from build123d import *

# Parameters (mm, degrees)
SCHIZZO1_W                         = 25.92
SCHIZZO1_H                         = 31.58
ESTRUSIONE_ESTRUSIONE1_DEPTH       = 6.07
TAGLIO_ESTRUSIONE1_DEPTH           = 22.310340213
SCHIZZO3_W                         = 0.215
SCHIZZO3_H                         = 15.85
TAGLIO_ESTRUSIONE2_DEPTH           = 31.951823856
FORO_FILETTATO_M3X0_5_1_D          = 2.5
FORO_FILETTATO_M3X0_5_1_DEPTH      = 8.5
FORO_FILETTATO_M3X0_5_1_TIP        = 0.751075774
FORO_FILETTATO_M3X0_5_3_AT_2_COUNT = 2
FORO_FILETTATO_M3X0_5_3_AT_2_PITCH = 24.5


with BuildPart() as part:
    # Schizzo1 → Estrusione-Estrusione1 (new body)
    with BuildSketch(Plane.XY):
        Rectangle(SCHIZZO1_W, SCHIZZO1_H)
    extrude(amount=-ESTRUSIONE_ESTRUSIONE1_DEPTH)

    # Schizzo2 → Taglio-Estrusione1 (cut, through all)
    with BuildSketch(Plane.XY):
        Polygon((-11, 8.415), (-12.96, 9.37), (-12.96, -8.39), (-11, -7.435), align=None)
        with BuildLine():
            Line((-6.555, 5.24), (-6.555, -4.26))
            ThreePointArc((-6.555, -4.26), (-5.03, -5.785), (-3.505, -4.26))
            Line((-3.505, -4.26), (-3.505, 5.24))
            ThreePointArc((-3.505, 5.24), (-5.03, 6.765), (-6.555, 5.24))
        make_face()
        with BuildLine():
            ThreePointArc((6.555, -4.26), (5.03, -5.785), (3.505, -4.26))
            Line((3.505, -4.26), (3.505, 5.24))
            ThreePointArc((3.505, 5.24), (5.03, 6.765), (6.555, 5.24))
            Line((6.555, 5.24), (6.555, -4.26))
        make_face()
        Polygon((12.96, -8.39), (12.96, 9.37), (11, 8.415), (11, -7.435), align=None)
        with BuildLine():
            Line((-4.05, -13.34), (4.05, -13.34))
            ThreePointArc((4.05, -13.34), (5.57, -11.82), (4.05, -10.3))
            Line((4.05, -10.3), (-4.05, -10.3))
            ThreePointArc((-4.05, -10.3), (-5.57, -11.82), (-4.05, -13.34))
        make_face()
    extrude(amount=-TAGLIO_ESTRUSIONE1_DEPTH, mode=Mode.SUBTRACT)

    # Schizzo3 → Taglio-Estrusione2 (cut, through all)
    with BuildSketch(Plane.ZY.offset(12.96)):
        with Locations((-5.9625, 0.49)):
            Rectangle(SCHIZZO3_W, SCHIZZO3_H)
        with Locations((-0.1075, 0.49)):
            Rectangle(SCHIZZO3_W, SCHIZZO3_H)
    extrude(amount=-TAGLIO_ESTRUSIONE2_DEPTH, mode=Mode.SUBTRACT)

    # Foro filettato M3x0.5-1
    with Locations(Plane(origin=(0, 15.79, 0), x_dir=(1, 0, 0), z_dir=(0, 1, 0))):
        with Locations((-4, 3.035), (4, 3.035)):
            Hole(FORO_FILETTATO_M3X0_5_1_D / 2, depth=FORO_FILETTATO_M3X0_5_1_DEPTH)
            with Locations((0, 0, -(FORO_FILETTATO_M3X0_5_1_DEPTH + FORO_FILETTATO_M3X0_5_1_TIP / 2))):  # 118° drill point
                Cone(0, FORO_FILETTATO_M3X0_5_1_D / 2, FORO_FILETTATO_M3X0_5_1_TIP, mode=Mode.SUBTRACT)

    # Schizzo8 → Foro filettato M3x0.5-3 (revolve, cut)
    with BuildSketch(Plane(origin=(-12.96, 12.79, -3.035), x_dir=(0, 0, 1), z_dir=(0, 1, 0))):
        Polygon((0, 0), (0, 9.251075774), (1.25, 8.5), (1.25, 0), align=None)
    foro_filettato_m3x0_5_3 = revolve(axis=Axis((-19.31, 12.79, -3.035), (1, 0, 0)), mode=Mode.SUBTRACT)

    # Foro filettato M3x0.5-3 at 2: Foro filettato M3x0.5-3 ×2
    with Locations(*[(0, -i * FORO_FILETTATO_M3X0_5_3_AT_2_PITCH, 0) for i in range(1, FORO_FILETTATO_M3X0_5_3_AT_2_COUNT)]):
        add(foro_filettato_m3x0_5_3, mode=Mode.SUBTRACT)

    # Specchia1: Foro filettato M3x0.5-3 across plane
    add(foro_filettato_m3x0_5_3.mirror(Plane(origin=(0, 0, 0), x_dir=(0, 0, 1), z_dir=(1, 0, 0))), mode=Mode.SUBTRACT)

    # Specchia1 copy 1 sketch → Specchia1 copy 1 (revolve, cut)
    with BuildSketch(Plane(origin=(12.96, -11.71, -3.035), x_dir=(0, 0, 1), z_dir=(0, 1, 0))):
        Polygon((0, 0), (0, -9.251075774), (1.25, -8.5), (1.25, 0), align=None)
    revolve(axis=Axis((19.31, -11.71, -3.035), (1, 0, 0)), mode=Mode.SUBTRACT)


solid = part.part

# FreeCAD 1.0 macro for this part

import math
import FreeCAD as App
import Part
import Sketcher
Q = App.Units.Quantity

doc = App.newDocument("Part")
body = doc.addObject("PartDesign::Body", "Body")

# Sketch on XY plane
sketch1 = body.newObject("Sketcher::SketchObject", "Sketch")
sketch1.AttachmentSupport = (doc.getObject("XY_Plane"), [""])
sketch1.MapMode = "FlatFace"
sketch1.addGeometry(Part.LineSegment(App.Vector(-12.96, 15.79, 0), App.Vector(-12.96, -15.79, 0)), False)
sketch1.addGeometry(Part.LineSegment(App.Vector(-12.96, -15.79, 0), App.Vector(12.96, -15.79, 0)), False)
sketch1.addGeometry(Part.LineSegment(App.Vector(12.96, -15.79, 0), App.Vector(12.96, 15.79, 0)), False)
sketch1.addGeometry(Part.LineSegment(App.Vector(12.96, 15.79, 0), App.Vector(-12.96, 15.79, 0)), False)
sketch1.addConstraint(Sketcher.Constraint("Coincident", 0, 2, 1, 1))
sketch1.addConstraint(Sketcher.Constraint("Coincident", 1, 2, 2, 1))
sketch1.addConstraint(Sketcher.Constraint("Coincident", 2, 2, 3, 1))
sketch1.addConstraint(Sketcher.Constraint("Coincident", 3, 2, 0, 1))
sketch1.addConstraint(Sketcher.Constraint("Vertical", 0))
sketch1.addConstraint(Sketcher.Constraint("Horizontal", 1))
sketch1.addConstraint(Sketcher.Constraint("Vertical", 2))
sketch1.addConstraint(Sketcher.Constraint("Horizontal", 3))
sketch1.addConstraint(Sketcher.Constraint("Symmetric", 0, 2, 2, 2, -1, 1))
sketch1.addConstraint(Sketcher.Constraint("DistanceX", 1, 1, 1, 2, 25.92))
sketch1.addConstraint(Sketcher.Constraint("DistanceY", 0, 2, 0, 1, 31.58))
pad1 = body.newObject("PartDesign::Pad", "Pad")
pad1.Profile = sketch1
pad1.Length = 6.07
pad1.Reversed = True

# Sketch on XY plane
sketch2 = body.newObject("Sketcher::SketchObject", "Sketch001")
sketch2.AttachmentSupport = (doc.getObject("XY_Plane"), [""])
sketch2.MapMode = "FlatFace"
sketch2.addGeometry(Part.LineSegment(App.Vector(-11, 8.415, 0), App.Vector(-12.96, 9.37, 0)), False)
sketch2.addGeometry(Part.LineSegment(App.Vector(-12.96, 9.37, 0), App.Vector(-12.96, -8.39, 0)), False)
sketch2.addGeometry(Part.LineSegment(App.Vector(-12.96, -8.39, 0), App.Vector(-11, -7.435, 0)), False)
sketch2.addGeometry(Part.LineSegment(App.Vector(-11, -7.435, 0), App.Vector(-11, 8.415, 0)), False)
sketch2.addGeometry(Part.LineSegment(App.Vector(-6.555, 5.24, 0), App.Vector(-6.555, -4.26, 0)), False)
sketch2.addGeometry(Part.ArcOfCircle(Part.Circle(App.Vector(-5.03, -4.26, 0), App.Vector(0, 0, 1), 1.525), math.radians(180), math.radians(360)), False)
sketch2.addGeometry(Part.LineSegment(App.Vector(-3.505, -4.26, 0), App.Vector(-3.505, 5.24, 0)), False)
sketch2.addGeometry(Part.ArcOfCircle(Part.Circle(App.Vector(-5.03, 5.24, 0), App.Vector(0, 0, 1), 1.525), math.radians(0), math.radians(180)), False)
sketch2.addGeometry(Part.ArcOfCircle(Part.Circle(App.Vector(5.03, -4.26, 0), App.Vector(0, 0, 1), 1.525), math.radians(180), math.radians(360)), False)
sketch2.addGeometry(Part.LineSegment(App.Vector(6.555, -4.26, 0), App.Vector(6.555, 5.24, 0)), False)
sketch2.addGeometry(Part.ArcOfCircle(Part.Circle(App.Vector(5.03, 5.24, 0), App.Vector(0, 0, 1), 1.525), math.radians(0), math.radians(180)), False)
sketch2.addGeometry(Part.LineSegment(App.Vector(3.505, 5.24, 0), App.Vector(3.505, -4.26, 0)), False)
sketch2.addGeometry(Part.LineSegment(App.Vector(12.96, -8.39, 0), App.Vector(12.96, 9.37, 0)), False)
sketch2.addGeometry(Part.LineSegment(App.Vector(12.96, 9.37, 0), App.Vector(11, 8.415, 0)), False)
sketch2.addGeometry(Part.LineSegment(App.Vector(11, 8.415, 0), App.Vector(11, -7.435, 0)), False)
sketch2.addGeometry(Part.LineSegment(App.Vector(11, -7.435, 0), App.Vector(12.96, -8.39, 0)), False)
sketch2.addGeometry(Part.LineSegment(App.Vector(-4.05, -13.34, 0), App.Vector(4.05, -13.34, 0)), False)
sketch2.addGeometry(Part.ArcOfCircle(Part.Circle(App.Vector(4.05, -11.82, 0), App.Vector(0, 0, 1), 1.52), math.radians(-90), math.radians(90)), False)
sketch2.addGeometry(Part.LineSegment(App.Vector(4.05, -10.3, 0), App.Vector(-4.05, -10.3, 0)), False)
sketch2.addGeometry(Part.ArcOfCircle(Part.Circle(App.Vector(-4.05, -11.82, 0), App.Vector(0, 0, 1), 1.52), math.radians(90), math.radians(270)), False)
sketch2.addConstraint(Sketcher.Constraint("Coincident", 0, 2, 1, 1))
sketch2.addConstraint(Sketcher.Constraint("Coincident", 1, 2, 2, 1))
sketch2.addConstraint(Sketcher.Constraint("Coincident", 2, 2, 3, 1))
sketch2.addConstraint(Sketcher.Constraint("Coincident", 3, 2, 0, 1))
sketch2.addConstraint(Sketcher.Constraint("Tangent", 4, 2, 5, 1))
sketch2.addConstraint(Sketcher.Constraint("Tangent", 5, 2, 6, 1))
sketch2.addConstraint(Sketcher.Constraint("Tangent", 6, 2, 7, 1))
sketch2.addConstraint(Sketcher.Constraint("Tangent", 7, 2, 4, 1))
sketch2.addConstraint(Sketcher.Constraint("Tangent", 8, 2, 9, 1))
sketch2.addConstraint(Sketcher.Constraint("Tangent", 9, 2, 10, 1))
sketch2.addConstraint(Sketcher.Constraint("Tangent", 10, 2, 11, 1))
sketch2.addConstraint(Sketcher.Constraint("Tangent", 11, 2, 8, 1))
sketch2.addConstraint(Sketcher.Constraint("Coincident", 12, 2, 13, 1))
sketch2.addConstraint(Sketcher.Constraint("Coincident", 13, 2, 14, 1))
sketch2.addConstraint(Sketcher.Constraint("Coincident", 14, 2, 15, 1))
sketch2.addConstraint(Sketcher.Constraint("Coincident", 15, 2, 12, 1))
sketch2.addConstraint(Sketcher.Constraint("Tangent", 16, 2, 17, 1))
sketch2.addConstraint(Sketcher.Constraint("Tangent", 17, 2, 18, 1))
sketch2.addConstraint(Sketcher.Constraint("Tangent", 18, 2, 19, 1))
sketch2.addConstraint(Sketcher.Constraint("Tangent", 19, 2, 16, 1))
sketch2.addConstraint(Sketcher.Constraint("Vertical", 1))
sketch2.addConstraint(Sketcher.Constraint("Vertical", 3))
sketch2.addConstraint(Sketcher.Constraint("Vertical", 4))
sketch2.addConstraint(Sketcher.Constraint("Vertical", 6))
sketch2.addConstraint(Sketcher.Constraint("Vertical", 9))
sketch2.addConstraint(Sketcher.Constraint("Vertical", 11))
sketch2.addConstraint(Sketcher.Constraint("Vertical", 12))
sketch2.addConstraint(Sketcher.Constraint("Vertical", 14))
sketch2.addConstraint(Sketcher.Constraint("Horizontal", 16))
sketch2.addConstraint(Sketcher.Constraint("Horizontal", 18))
sketch2.addConstraint(Sketcher.Constraint("Equal", 7, 8))
sketch2.addConstraint(Sketcher.Constraint("Symmetric", 5, 3, 8, 3, -2))
sketch2.addConstraint(Sketcher.Constraint("Symmetric", 0, 2, 12, 2, -2))
sketch2.addConstraint(Sketcher.Constraint("Symmetric", 3, 2, 13, 2, -2))
sketch2.addConstraint(Sketcher.Constraint("Parallel", 2, 13))
sketch2.addConstraint(Sketcher.Constraint("Parallel", 0, 15))
sketch2.addConstraint(Sketcher.Constraint("Horizontal", 7, 3, 10, 3))
sketch2.addConstraint(Sketcher.Constraint("Horizontal", 2, 2, 14, 2))
sketch2.addConstraint(Sketcher.Constraint("Radius", 17, 1.52))
sketch2.addConstraint(Sketcher.Constraint("DistanceX", 16, 1, 16, 2, 8.1))
sketch2.addConstraint(Sketcher.Constraint("DistanceY", 4, 2, 4, 1, 9.5))
sketch2.addConstraint(Sketcher.Constraint("DistanceX", 2, 2, -1, 1, 11.0))
sketch2.addConstraint(Sketcher.Constraint("Radius", 5, 1.525))
sketch2.addConstraint(Sketcher.Constraint("DistanceY", 1, 2, 1, 1, 17.76))
sketch2.addConstraint(Sketcher.Constraint("DistanceY", 3, 1, 3, 2, 15.85))
sketch2.addConstraint(Sketcher.Constraint("DistanceY", 17, 2, -1, 1, 10.3))
sketch2.addConstraint(Sketcher.Constraint("DistanceX", 5, 3, -1, 1, 5.03))
sketch2.addConstraint(Sketcher.Constraint("DistanceY", 5, 3, -1, 1, 4.26))
sketch2.addConstraint(Sketcher.Constraint("DistanceX", -1, 1, 17, 3, 4.05))
sketch2.addConstraint(Sketcher.Constraint("DistanceX", 0, 2, -1, 1, 12.96))
sketch2.addConstraint(Sketcher.Constraint("DistanceY", -1, 1, 0, 2, 9.37))
pocket1 = body.newObject("PartDesign::Pocket", "Pocket")
pocket1.Profile = sketch2
pocket1.Type = "ThroughAll"

# Sketch on YZ plane
sketch3 = body.newObject("Sketcher::SketchObject", "Sketch002")
sketch3.AttachmentSupport = (doc.getObject("YZ_Plane"), [""])
sketch3.MapMode = "FlatFace"
sketch3.AttachmentOffset = App.Placement(App.Vector(0, 0, -12.96), App.Rotation())
sketch3.addGeometry(Part.LineSegment(App.Vector(8.415, -6.07, 0), App.Vector(-7.435, -6.07, 0)), False)
sketch3.addGeometry(Part.LineSegment(App.Vector(-7.435, -6.07, 0), App.Vector(-7.435, -5.855, 0)), False)
sketch3.addGeometry(Part.LineSegment(App.Vector(-7.435, -5.855, 0), App.Vector(8.415, -5.855, 0)), False)
sketch3.addGeometry(Part.LineSegment(App.Vector(8.415, -5.855, 0), App.Vector(8.415, -6.07, 0)), False)
sketch3.addGeometry(Part.LineSegment(App.Vector(8.415, -0.215, 0), App.Vector(-7.435, -0.215, 0)), False)
sketch3.addGeometry(Part.LineSegment(App.Vector(-7.435, -0.215, 0), App.Vector(-7.435, 0, 0)), False)
sketch3.addGeometry(Part.LineSegment(App.Vector(-7.435, 0, 0), App.Vector(8.415, 0, 0)), False)
sketch3.addGeometry(Part.LineSegment(App.Vector(8.415, 0, 0), App.Vector(8.415, -0.215, 0)), False)
sketch3.addConstraint(Sketcher.Constraint("Coincident", 0, 2, 1, 1))
sketch3.addConstraint(Sketcher.Constraint("Coincident", 1, 2, 2, 1))
sketch3.addConstraint(Sketcher.Constraint("Coincident", 2, 2, 3, 1))
sketch3.addConstraint(Sketcher.Constraint("Coincident", 3, 2, 0, 1))
sketch3.addConstraint(Sketcher.Constraint("Coincident", 4, 2, 5, 1))
sketch3.addConstraint(Sketcher.Constraint("Coincident", 5, 2, 6, 1))
sketch3.addConstraint(Sketcher.Constraint("Coincident", 6, 2, 7, 1))
sketch3.addConstraint(Sketcher.Constraint("Coincident", 7, 2, 4, 1))
sketch3.addConstraint(Sketcher.Constraint("Horizontal", 0))
sketch3.addConstraint(Sketcher.Constraint("Vertical", 1))
sketch3.addConstraint(Sketcher.Constraint("Horizontal", 2))
sketch3.addConstraint(Sketcher.Constraint("Vertical", 3))
sketch3.addConstraint(Sketcher.Constraint("Horizontal", 4))
sketch3.addConstraint(Sketcher.Constraint("Vertical", 5))
sketch3.addConstraint(Sketcher.Constraint("Horizontal", 6))
sketch3.addConstraint(Sketcher.Constraint("Vertical", 7))
sketch3.addConstraint(Sketcher.Constraint("PointOnObject", 5, 2, -1))
sketch3.addConstraint(Sketcher.Constraint("Vertical", 1, 2, 4, 2))
sketch3.addConstraint(Sketcher.Constraint("Vertical", 3, 2, 6, 2))
sketch3.addConstraint(Sketcher.Constraint("Equal", 3, 5))
sketch3.addConstraint(Sketcher.Constraint("DistanceX", 0, 2, 0, 1, 15.85))
sketch3.addConstraint(Sketcher.Constraint("DistanceY", 1, 1, 1, 2, 0.215))
sketch3.addConstraint(Sketcher.Constraint("DistanceY", 0, 2, -1, 1, 6.07))
sketch3.addConstraint(Sketcher.Constraint("DistanceX", 0, 2, -1, 1, 7.435))
pocket2 = body.newObject("PartDesign::Pocket", "Pocket001")
pocket2.Profile = sketch3
pocket2.Type = "ThroughAll"
pocket2.Reversed = True

# Sketch on XZ plane
sketch4 = body.newObject("Sketcher::SketchObject", "Sketch003")
sketch4.AttachmentSupport = (doc.getObject("XZ_Plane"), [""])
sketch4.MapMode = "FlatFace"
sketch4.AttachmentOffset = App.Placement(App.Vector(0, 0, -15.79), App.Rotation())
sketch4.addGeometry(Part.Circle(App.Vector(-4, -3.035, 0), App.Vector(0, 0, 1), 1.25), False)
sketch4.addGeometry(Part.Circle(App.Vector(4, -3.035, 0), App.Vector(0, 0, 1), 1.25), False)
sketch4.addConstraint(Sketcher.Constraint("Equal", 0, 1))
sketch4.addConstraint(Sketcher.Constraint("Symmetric", 0, 3, 1, 3, -2))
sketch4.addConstraint(Sketcher.Constraint("Diameter", 0, 2.5))
sketch4.addConstraint(Sketcher.Constraint("DistanceX", 0, 3, -1, 1, 4.0))
sketch4.addConstraint(Sketcher.Constraint("DistanceY", 0, 3, -1, 1, 3.035))
doc.recompute()
hole = body.newObject("PartDesign::Hole", "Hole")
hole.Profile = sketch4
hole.ThreadType = "None"
hole.Diameter = 2.5
hole.DepthType = "Dimension"
hole.Depth = 8.5
hole.DrillPoint = "Angled"
hole.DrillPointAngle = 118
hole.Reversed = True

# Sketch on XZ plane
sketch5 = body.newObject("Sketcher::SketchObject", "Sketch004")
sketch5.AttachmentSupport = (doc.getObject("XZ_Plane"), [""])
sketch5.MapMode = "FlatFace"
sketch5.AttachmentOffset = App.Placement(App.Vector(0, 0, -12.79), App.Rotation())
sketch5.addGeometry(Part.LineSegment(App.Vector(-3.708924, -3.035, 0), App.Vector(-12.96, -3.035, 0)), False)
sketch5.addGeometry(Part.LineSegment(App.Vector(-12.96, -3.035, 0), App.Vector(-12.96, -1.785, 0)), False)
sketch5.addGeometry(Part.LineSegment(App.Vector(-12.96, -1.785, 0), App.Vector(-4.46, -1.785, 0)), False)
sketch5.addGeometry(Part.LineSegment(App.Vector(-4.46, -1.785, 0), App.Vector(-3.708924, -3.035, 0)), False)
sketch5.addGeometry(Part.LineSegment(App.Vector(-12.96, -3.035, 0), App.Vector(-3.708924, -3.035, 0)), True)  # axis
sketch5.addConstraint(Sketcher.Constraint("Coincident", 0, 2, 1, 1))
sketch5.addConstraint(Sketcher.Constraint("Coincident", 1, 2, 2, 1))
sketch5.addConstraint(Sketcher.Constraint("Coincident", 2, 2, 3, 1))
sketch5.addConstraint(Sketcher.Constraint("Coincident", 3, 2, 0, 1))
sketch5.addConstraint(Sketcher.Constraint("Horizontal", 0))
sketch5.addConstraint(Sketcher.Constraint("Vertical", 1))
sketch5.addConstraint(Sketcher.Constraint("Horizontal", 2))
sketch5.addConstraint(Sketcher.Constraint("Horizontal", 4))
sketch5.addConstraint(Sketcher.Constraint("Coincident", 4, 1, 0, 2))
sketch5.addConstraint(Sketcher.Constraint("Equal", 0, 4))
sketch5.addConstraint(Sketcher.Constraint("Angle", 3, Q("-59 deg")))
sketch5.addConstraint(Sketcher.Constraint("DistanceX", 2, 1, 2, 2, 8.5))
sketch5.addConstraint(Sketcher.Constraint("DistanceY", 1, 1, 1, 2, 1.25))
sketch5.addConstraint(Sketcher.Constraint("DistanceX", 0, 2, -1, 1, 12.96))
sketch5.addConstraint(Sketcher.Constraint("DistanceY", 0, 2, -1, 1, 3.035))
groove = body.newObject("PartDesign::Groove", "Groove")
groove.Profile = sketch5
groove.ReferenceAxis = (sketch5, ["Axis0"])
groove.Angle = 360
doc.recompute()

linearpattern = body.newObject("PartDesign::LinearPattern", "LinearPattern")
linearpattern.Originals = [groove]
linearpattern.Direction = (doc.getObject("Y_Axis"), [""])
linearpattern.Mode = "offset"
linearpattern.Offset = 24.5
linearpattern.Occurrences = 2
linearpattern.Reversed = True
body.Tip = linearpattern
doc.recompute()

mirrored = body.newObject("PartDesign::Mirrored", "Mirrored")
mirrored.Originals = [groove]
mirrored.MirrorPlane = (doc.getObject("YZ_Plane"), [""])
body.Tip = mirrored

# Sketch on XZ plane
sketch6 = body.newObject("Sketcher::SketchObject", "Sketch005")
sketch6.AttachmentSupport = (doc.getObject("XZ_Plane"), [""])
sketch6.MapMode = "FlatFace"
sketch6.AttachmentOffset = App.Placement(App.Vector(0, 0, 11.71), App.Rotation())
sketch6.addGeometry(Part.LineSegment(App.Vector(12.96, -3.035, 0), App.Vector(3.708924, -3.035, 0)), False)
sketch6.addGeometry(Part.LineSegment(App.Vector(3.708924, -3.035, 0), App.Vector(4.46, -1.785, 0)), False)
sketch6.addGeometry(Part.LineSegment(App.Vector(4.46, -1.785, 0), App.Vector(12.96, -1.785, 0)), False)
sketch6.addGeometry(Part.LineSegment(App.Vector(12.96, -1.785, 0), App.Vector(12.96, -3.035, 0)), False)
sketch6.addGeometry(Part.LineSegment(App.Vector(3.708924, -3.035, 0), App.Vector(12.96, -3.035, 0)), True)  # axis
sketch6.addConstraint(Sketcher.Constraint("Coincident", 0, 2, 1, 1))
sketch6.addConstraint(Sketcher.Constraint("Coincident", 1, 2, 2, 1))
sketch6.addConstraint(Sketcher.Constraint("Coincident", 2, 2, 3, 1))
sketch6.addConstraint(Sketcher.Constraint("Coincident", 3, 2, 0, 1))
sketch6.addConstraint(Sketcher.Constraint("Horizontal", 0))
sketch6.addConstraint(Sketcher.Constraint("Horizontal", 2))
sketch6.addConstraint(Sketcher.Constraint("Vertical", 3))
sketch6.addConstraint(Sketcher.Constraint("Horizontal", 4))
sketch6.addConstraint(Sketcher.Constraint("Coincident", 4, 1, 0, 2))
sketch6.addConstraint(Sketcher.Constraint("Vertical", 2, 2, 4, 2))
sketch6.addConstraint(Sketcher.Constraint("Angle", 1, Q("59 deg")))
sketch6.addConstraint(Sketcher.Constraint("DistanceX", 2, 1, 2, 2, 8.5))
sketch6.addConstraint(Sketcher.Constraint("DistanceY", 3, 2, 3, 1, 1.25))
sketch6.addConstraint(Sketcher.Constraint("DistanceX", -1, 1, 1, 2, 4.46))
sketch6.addConstraint(Sketcher.Constraint("DistanceY", 0, 2, -1, 1, 3.035))
groove2 = body.newObject("PartDesign::Groove", "Groove001")
groove2.Profile = sketch6
groove2.ReferenceAxis = (sketch6, ["Axis0"])
groove2.Angle = 360

doc.recompute()
